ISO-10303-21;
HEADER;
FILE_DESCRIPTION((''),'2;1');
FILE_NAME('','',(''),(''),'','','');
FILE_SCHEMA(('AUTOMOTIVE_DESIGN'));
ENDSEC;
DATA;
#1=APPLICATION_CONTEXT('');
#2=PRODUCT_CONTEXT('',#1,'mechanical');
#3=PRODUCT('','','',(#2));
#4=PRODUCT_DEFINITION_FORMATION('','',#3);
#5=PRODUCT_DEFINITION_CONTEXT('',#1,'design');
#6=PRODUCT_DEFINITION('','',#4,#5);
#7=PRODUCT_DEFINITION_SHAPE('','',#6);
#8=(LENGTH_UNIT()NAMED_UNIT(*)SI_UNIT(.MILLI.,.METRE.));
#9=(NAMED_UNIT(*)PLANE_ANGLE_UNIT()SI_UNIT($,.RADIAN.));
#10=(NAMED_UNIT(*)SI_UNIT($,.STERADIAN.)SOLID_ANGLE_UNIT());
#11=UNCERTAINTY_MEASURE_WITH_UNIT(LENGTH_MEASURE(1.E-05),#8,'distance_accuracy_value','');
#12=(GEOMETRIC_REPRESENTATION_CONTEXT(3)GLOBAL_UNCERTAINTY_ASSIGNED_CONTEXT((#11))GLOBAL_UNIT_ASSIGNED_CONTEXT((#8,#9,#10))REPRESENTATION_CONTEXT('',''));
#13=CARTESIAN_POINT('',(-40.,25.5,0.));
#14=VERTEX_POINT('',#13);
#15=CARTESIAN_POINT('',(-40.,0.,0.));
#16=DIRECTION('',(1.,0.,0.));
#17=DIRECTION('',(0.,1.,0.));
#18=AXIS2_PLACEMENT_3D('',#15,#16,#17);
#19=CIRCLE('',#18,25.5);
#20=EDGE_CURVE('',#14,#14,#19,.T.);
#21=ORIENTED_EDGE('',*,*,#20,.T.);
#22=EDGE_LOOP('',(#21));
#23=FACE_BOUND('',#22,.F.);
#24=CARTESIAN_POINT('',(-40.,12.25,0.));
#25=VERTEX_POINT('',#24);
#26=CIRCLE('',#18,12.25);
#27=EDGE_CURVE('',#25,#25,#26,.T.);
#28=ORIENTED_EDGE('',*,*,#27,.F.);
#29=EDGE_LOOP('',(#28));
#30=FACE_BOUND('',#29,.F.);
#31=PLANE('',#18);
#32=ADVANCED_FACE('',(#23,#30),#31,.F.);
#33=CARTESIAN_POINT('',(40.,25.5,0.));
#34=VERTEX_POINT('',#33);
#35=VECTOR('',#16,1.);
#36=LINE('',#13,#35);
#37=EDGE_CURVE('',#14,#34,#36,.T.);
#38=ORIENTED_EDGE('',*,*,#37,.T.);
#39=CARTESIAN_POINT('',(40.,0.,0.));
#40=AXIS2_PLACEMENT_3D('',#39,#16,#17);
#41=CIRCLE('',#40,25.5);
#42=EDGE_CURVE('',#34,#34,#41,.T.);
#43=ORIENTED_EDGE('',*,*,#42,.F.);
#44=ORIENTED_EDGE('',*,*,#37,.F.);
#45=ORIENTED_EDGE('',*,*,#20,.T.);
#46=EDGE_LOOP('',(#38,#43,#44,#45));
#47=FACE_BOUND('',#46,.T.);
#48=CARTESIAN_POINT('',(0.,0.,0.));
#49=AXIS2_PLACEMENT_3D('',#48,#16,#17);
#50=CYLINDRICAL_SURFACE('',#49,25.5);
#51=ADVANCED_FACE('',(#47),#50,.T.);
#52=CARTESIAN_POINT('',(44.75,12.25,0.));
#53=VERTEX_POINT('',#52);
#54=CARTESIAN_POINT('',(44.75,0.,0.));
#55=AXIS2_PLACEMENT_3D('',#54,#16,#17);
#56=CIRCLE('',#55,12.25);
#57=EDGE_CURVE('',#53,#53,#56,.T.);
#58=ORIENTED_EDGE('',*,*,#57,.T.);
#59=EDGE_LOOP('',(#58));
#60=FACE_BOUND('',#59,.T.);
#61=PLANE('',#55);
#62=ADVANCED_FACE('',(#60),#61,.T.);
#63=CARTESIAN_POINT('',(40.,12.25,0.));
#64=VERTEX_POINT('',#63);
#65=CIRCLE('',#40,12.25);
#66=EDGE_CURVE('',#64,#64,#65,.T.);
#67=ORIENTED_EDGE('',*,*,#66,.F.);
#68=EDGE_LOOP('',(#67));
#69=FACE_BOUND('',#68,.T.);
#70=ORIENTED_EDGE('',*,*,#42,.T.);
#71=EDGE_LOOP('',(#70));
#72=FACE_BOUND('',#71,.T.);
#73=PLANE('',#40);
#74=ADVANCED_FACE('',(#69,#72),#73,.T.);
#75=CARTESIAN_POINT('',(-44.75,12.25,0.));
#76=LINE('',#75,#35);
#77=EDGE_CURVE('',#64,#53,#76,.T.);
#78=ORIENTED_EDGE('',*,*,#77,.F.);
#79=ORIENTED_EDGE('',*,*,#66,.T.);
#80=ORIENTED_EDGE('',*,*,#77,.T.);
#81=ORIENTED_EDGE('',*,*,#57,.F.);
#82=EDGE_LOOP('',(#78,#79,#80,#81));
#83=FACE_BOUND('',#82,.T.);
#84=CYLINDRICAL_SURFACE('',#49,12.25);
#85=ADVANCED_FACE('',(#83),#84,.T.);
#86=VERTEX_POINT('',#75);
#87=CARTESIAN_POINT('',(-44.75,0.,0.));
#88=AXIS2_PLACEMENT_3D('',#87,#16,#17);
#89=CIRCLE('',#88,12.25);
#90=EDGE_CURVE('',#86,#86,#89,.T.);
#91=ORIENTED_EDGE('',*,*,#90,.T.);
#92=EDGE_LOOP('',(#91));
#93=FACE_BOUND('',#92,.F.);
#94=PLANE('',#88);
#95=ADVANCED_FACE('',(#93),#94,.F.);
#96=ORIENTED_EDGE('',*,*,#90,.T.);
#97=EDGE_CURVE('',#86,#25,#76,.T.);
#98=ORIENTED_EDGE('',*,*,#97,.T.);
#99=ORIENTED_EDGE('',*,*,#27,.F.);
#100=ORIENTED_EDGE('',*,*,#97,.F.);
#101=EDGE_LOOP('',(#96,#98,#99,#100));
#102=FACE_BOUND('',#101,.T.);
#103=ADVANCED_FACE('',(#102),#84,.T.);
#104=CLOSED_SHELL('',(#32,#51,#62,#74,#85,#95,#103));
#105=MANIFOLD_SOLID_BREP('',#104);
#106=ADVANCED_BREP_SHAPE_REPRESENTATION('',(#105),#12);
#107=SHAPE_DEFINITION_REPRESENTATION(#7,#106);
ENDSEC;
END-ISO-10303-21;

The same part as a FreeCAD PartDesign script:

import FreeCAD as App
import Part
import Sketcher
from FreeCAD import Vector
Q = App.Units.Quantity

doc = App.newDocument("Part")
body = doc.addObject("PartDesign::Body", "Body")

# Sketch on YZ plane
sketch1 = body.newObject("Sketcher::SketchObject", "Sketch")
sketch1.AttachmentSupport = (doc.getObject("YZ_Plane"), [""])
sketch1.MapMode = "FlatFace"
sketch1.addGeometry([
    Part.Circle(Vector(0, 0, 0), Vector(0, 0, 1), 26),
    Part.Circle(Vector(0, 0, 0), Vector(0, 0, 1), 12),
], False)
sketch1.addConstraint([
    Sketcher.Constraint("Coincident", 0, 3, -1, 1),
    Sketcher.Constraint("Coincident", 1, 3, -1, 1),
    Sketcher.Constraint("Diameter", 0, Q("51 mm")),
    Sketcher.Constraint("Diameter", 1, Q("24.5 mm")),
])
pad1 = body.newObject("PartDesign::Pad", "Pad")
pad1.Profile = sketch1
pad1.Length = 80
pad1.Midplane = True

# Sketch on YZ plane
sketch2 = body.newObject("Sketcher::SketchObject", "Sketch001")
sketch2.AttachmentSupport = (doc.getObject("YZ_Plane"), [""])
sketch2.MapMode = "FlatFace"
sketch2.addGeometry(Part.Circle(Vector(0, 0, 0), Vector(0, 0, 1), 12), False)
sketch2.addConstraint([
    Sketcher.Constraint("Coincident", 0, 3, -1, 1),
    Sketcher.Constraint("Diameter", 0, Q("24.5 mm")),
])
pad2 = body.newObject("PartDesign::Pad", "Pad001")
pad2.Profile = sketch2
pad2.Length = 89.5
pad2.Midplane = True

doc.recompute()
